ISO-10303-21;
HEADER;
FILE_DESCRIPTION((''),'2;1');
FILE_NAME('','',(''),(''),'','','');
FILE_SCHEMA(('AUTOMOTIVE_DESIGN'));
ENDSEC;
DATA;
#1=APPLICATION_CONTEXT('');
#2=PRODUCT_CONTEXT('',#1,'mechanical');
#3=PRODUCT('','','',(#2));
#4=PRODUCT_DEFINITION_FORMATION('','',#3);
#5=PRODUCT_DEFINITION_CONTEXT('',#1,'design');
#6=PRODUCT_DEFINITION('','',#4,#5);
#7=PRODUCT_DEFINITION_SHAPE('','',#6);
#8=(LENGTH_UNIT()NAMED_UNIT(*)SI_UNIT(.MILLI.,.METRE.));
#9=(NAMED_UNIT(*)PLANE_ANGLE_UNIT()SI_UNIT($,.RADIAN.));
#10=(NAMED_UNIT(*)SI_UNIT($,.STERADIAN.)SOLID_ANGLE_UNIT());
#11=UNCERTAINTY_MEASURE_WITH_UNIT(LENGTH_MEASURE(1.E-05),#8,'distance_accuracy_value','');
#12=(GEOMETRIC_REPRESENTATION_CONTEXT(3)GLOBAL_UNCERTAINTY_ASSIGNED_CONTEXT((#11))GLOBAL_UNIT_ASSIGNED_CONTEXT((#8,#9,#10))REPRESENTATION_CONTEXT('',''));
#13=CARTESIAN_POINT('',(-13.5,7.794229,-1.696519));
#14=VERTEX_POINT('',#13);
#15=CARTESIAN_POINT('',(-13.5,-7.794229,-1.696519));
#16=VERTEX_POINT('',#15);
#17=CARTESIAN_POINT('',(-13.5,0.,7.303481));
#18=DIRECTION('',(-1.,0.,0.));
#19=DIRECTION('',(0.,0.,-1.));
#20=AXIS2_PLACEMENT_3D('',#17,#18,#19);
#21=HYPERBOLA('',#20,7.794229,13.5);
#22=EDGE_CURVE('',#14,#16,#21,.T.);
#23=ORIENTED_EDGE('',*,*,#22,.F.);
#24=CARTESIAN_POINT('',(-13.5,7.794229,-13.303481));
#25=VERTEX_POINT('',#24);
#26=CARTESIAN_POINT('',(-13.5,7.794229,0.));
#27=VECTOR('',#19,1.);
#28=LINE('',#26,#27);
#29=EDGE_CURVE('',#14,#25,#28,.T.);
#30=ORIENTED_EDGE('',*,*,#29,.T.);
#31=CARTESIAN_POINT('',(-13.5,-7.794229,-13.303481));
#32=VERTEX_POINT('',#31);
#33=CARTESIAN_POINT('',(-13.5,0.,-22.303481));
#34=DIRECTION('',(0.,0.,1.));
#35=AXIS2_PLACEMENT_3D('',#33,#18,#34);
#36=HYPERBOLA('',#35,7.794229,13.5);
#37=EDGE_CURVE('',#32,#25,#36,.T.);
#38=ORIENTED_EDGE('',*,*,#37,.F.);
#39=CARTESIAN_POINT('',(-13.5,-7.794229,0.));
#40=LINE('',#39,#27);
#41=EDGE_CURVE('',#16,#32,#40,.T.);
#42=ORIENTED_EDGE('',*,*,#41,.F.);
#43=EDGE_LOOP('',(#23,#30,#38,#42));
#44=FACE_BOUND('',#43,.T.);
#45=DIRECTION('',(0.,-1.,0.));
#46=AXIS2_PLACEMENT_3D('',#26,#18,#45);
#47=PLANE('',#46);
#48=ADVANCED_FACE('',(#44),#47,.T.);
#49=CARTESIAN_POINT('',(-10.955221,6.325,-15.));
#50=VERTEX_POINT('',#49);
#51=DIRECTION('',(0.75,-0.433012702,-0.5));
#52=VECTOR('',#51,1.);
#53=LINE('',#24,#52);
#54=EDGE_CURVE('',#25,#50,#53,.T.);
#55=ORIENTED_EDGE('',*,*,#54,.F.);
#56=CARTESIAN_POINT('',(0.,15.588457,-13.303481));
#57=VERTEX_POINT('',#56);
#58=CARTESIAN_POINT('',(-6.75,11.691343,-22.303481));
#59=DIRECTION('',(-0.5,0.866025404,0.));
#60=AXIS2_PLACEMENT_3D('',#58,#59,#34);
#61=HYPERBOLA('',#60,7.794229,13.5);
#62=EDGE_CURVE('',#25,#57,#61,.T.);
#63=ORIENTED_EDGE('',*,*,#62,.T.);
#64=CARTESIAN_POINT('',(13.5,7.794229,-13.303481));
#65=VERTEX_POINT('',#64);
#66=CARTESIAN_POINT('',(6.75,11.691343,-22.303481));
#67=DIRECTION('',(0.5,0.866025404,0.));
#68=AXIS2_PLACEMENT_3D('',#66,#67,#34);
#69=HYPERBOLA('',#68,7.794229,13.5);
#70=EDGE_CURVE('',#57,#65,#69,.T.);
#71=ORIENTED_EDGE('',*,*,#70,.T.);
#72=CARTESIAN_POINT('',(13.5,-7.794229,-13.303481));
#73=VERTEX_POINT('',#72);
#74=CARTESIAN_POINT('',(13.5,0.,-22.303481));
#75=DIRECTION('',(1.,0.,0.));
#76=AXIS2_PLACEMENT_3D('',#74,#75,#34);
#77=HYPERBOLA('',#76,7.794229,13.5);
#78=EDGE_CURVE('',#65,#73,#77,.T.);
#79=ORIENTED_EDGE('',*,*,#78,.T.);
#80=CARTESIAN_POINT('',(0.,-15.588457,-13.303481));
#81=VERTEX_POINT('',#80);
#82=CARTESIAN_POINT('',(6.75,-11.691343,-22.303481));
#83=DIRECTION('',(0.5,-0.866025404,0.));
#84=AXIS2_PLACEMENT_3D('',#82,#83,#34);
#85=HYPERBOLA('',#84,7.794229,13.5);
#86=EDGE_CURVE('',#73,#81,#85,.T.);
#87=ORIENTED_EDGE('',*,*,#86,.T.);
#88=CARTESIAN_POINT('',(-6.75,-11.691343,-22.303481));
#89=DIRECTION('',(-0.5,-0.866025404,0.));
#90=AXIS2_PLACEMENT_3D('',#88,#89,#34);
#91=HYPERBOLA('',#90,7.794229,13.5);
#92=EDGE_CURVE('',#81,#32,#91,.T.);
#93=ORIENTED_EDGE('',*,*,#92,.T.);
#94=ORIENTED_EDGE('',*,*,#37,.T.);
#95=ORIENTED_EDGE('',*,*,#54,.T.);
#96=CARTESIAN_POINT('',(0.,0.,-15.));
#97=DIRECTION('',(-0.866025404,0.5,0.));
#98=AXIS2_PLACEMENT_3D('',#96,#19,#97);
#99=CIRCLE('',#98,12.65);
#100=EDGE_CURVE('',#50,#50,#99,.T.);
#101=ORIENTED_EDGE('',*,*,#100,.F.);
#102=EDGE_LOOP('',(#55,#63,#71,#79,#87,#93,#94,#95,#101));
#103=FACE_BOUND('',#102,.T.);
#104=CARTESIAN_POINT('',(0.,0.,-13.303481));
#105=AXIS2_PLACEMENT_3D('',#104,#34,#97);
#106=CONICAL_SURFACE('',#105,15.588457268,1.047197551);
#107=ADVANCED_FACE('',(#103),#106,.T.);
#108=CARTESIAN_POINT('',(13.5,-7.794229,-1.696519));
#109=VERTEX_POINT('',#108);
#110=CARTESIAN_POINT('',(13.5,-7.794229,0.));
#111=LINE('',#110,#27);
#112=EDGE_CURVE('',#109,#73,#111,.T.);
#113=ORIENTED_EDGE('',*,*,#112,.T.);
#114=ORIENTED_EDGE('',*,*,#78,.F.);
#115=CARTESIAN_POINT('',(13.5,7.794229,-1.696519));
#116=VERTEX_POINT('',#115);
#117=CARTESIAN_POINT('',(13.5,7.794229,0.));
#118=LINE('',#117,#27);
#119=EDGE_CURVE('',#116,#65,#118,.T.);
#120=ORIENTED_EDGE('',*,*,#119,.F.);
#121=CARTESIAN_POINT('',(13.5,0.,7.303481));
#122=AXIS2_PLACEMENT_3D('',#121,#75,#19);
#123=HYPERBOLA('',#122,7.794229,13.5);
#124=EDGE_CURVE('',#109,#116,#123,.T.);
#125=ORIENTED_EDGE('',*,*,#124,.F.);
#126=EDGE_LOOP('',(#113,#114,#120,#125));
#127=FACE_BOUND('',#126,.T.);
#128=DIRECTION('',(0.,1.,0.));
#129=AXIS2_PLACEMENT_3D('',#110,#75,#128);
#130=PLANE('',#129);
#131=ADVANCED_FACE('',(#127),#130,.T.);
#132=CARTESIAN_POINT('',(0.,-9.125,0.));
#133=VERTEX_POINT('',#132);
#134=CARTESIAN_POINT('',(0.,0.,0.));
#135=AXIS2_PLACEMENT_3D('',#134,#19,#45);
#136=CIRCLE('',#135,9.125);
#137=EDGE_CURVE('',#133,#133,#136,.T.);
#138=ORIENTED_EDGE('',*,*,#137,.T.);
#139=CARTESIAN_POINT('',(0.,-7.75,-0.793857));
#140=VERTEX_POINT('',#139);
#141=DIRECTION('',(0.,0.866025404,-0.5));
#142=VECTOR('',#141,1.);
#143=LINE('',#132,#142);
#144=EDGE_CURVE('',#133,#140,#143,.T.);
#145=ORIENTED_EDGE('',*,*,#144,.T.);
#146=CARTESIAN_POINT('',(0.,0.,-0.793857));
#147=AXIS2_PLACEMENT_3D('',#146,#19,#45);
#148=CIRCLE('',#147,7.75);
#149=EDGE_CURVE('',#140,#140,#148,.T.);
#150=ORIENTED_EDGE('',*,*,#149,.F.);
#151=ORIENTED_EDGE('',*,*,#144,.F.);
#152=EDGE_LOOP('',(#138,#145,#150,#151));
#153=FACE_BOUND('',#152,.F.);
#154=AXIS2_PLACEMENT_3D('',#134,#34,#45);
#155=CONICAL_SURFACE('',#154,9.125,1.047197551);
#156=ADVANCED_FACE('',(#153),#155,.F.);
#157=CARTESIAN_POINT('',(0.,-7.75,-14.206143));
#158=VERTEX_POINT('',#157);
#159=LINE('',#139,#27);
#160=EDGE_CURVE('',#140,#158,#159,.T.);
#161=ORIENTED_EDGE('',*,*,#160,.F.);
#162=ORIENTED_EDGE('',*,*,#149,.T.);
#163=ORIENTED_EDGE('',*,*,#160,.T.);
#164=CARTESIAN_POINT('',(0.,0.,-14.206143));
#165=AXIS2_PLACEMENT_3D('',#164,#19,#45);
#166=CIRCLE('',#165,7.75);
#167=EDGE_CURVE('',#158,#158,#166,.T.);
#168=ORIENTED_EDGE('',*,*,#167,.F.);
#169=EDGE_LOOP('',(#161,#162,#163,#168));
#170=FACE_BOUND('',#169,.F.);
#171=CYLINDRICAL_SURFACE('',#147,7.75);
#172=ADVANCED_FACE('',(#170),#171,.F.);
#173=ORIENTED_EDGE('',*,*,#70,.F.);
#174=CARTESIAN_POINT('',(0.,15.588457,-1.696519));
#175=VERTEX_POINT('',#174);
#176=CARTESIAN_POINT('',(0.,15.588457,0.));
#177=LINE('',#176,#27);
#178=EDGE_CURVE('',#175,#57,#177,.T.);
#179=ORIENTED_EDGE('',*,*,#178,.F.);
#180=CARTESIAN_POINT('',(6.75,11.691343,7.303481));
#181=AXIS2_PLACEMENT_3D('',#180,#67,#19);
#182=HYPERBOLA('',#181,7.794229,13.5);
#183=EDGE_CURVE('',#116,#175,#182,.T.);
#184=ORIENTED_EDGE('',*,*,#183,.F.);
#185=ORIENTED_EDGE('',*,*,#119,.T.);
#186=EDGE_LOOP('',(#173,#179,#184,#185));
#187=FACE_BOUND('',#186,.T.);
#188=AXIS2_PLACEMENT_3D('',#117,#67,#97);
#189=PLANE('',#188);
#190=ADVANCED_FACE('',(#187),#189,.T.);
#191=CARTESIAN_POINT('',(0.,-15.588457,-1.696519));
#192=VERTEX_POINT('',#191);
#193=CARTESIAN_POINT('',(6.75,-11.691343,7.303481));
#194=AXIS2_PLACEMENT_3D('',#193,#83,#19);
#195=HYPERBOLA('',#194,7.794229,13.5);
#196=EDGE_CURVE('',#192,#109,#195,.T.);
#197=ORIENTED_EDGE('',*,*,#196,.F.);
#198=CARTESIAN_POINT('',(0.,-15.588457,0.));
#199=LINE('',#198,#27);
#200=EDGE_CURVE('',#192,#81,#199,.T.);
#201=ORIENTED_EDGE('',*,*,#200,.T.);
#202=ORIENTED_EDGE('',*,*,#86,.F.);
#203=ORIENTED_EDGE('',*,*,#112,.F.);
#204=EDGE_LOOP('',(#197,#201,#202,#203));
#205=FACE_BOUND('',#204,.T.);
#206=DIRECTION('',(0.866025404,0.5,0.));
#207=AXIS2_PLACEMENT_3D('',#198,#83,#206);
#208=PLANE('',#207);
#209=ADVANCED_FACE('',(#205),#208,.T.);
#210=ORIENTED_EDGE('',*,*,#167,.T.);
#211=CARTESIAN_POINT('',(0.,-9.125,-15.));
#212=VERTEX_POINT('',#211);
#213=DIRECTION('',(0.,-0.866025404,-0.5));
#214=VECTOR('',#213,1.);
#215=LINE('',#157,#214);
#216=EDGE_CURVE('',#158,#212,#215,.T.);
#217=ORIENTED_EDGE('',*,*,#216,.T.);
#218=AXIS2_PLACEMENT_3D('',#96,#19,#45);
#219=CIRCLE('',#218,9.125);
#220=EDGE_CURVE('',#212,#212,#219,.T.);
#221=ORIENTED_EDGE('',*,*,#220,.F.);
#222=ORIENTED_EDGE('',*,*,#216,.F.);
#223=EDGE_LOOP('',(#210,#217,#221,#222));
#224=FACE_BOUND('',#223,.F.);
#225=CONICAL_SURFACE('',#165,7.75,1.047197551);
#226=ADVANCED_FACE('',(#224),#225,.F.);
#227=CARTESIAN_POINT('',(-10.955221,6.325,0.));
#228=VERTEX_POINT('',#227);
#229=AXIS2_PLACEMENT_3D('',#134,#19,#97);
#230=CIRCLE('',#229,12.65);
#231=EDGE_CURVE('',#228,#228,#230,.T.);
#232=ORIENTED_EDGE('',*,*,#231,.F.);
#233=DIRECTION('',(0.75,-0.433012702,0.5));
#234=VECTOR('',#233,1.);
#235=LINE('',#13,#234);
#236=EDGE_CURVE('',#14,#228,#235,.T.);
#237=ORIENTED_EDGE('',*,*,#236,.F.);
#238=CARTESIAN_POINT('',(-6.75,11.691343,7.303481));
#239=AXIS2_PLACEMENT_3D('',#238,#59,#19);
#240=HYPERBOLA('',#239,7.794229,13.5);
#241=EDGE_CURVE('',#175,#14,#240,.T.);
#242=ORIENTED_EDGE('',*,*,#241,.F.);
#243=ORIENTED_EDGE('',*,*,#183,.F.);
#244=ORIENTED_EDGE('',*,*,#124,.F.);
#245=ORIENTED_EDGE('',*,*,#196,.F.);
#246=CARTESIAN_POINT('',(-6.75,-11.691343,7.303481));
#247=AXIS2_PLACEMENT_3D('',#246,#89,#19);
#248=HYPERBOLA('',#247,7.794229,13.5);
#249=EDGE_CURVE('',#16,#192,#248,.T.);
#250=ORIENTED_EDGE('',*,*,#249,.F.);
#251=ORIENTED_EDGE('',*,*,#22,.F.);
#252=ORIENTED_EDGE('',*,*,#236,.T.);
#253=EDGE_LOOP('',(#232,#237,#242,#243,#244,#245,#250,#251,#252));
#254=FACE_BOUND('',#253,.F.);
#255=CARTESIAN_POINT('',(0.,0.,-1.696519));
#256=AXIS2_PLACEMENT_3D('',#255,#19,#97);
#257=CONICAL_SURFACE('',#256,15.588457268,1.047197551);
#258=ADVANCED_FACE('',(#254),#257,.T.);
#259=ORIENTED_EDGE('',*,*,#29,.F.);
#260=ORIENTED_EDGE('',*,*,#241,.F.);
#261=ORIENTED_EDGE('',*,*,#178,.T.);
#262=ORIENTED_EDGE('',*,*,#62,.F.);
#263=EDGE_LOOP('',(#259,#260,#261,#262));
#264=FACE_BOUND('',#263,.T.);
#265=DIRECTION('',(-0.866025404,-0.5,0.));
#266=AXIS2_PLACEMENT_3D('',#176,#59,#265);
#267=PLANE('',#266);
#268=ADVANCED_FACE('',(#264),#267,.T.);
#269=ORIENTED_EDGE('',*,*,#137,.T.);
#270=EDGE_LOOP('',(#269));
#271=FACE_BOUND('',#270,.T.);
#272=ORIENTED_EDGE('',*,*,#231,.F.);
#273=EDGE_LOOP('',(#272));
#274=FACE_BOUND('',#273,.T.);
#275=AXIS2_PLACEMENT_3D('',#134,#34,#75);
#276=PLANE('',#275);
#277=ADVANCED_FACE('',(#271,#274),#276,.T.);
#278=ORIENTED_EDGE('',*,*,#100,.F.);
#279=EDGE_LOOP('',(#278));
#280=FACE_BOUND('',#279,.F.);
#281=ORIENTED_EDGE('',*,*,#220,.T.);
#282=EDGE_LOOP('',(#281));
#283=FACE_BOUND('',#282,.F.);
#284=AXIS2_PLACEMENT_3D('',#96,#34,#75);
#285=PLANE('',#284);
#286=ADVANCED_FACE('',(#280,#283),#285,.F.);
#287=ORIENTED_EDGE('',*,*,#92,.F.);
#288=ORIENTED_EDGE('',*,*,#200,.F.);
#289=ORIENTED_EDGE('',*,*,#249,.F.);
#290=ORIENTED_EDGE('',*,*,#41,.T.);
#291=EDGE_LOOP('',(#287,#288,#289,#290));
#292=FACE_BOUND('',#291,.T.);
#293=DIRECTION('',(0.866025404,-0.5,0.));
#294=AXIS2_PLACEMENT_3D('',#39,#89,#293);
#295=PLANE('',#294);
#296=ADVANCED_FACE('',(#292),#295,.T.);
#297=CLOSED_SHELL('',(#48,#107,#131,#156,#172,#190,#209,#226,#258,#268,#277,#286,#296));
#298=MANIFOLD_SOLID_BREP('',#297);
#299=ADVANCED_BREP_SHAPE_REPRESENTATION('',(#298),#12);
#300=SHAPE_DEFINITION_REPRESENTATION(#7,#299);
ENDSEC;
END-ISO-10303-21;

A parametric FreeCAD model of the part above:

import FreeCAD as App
import Part
import Sketcher
Q = App.Units.Quantity


def add_polygon(sketch, points):
    """Adds a closed chain of lines whose ends are joined by coincident constraints."""
    first, n = sketch.GeometryCount, len(points)
    for a, b in zip(points, points[1:] + points[:1]):
        sketch.addGeometry(Part.LineSegment(App.Vector(*a, 0), App.Vector(*b, 0)), False)
    for i in range(n):
        sketch.addConstraint(Sketcher.Constraint("Coincident", first + i, 2, first + (i + 1) % n, 1))

doc = App.newDocument("Part")
body = doc.addObject("PartDesign::Body", "Body")

# Sketch on XY plane
sketch1 = body.newObject("Sketcher::SketchObject", "Sketch")
sketch1.AttachmentSupport = (doc.getObject("XY_Plane"), [""])
sketch1.MapMode = "FlatFace"
add_polygon(sketch1, [(0, 16), (-14, 8), (-14, -8), (0, -16), (14, -8), (14, 8)])  # lines 0-5
sketch1.addConstraint(Sketcher.Constraint("Vertical", 1))
sketch1.addConstraint(Sketcher.Constraint("Vertical", 4))
sketch1.addConstraint(Sketcher.Constraint("Symmetric", 0, 2, 3, 2, -1, 1))
sketch1.addConstraint(Sketcher.Constraint("Symmetric", 2, 2, 5, 2, -1, 1))
sketch1.addConstraint(Sketcher.Constraint("PointOnObject", 2, 2, -2))
sketch1.addConstraint(Sketcher.Constraint("Parallel", 2, 5))
sketch1.addConstraint(Sketcher.Constraint("Horizontal", 1, 2, 3, 2))
sketch1.addConstraint(Sketcher.Constraint("Angle", 0, Q("-150 deg")))
sketch1.addConstraint(Sketcher.Constraint("DistanceX", 1, 2, 3, 2, 27.0))
sketch1.addConstraint(Sketcher.Constraint("DistanceY", 1, 2, 1, 1, 15.588457))
pad1 = body.newObject("PartDesign::Pad", "Pad")
pad1.Profile = sketch1
pad1.Length = 15
pad1.Reversed = True

# Sketch on YZ plane
sketch2 = body.newObject("Sketcher::SketchObject", "Sketch001")
sketch2.AttachmentSupport = (doc.getObject("YZ_Plane"), [""])
sketch2.MapMode = "FlatFace"
add_polygon(sketch2, [(15.6, -15), (15.6, -13.3), (12.7, -15)])  # lines 0-2
add_polygon(sketch2, [(15.6, -1.7), (15.6, 0), (12.7, 0)])  # lines 3-5
sketch2.addConstraint(Sketcher.Constraint("Vertical", 0))
sketch2.addConstraint(Sketcher.Constraint("Horizontal", 2))
sketch2.addConstraint(Sketcher.Constraint("Vertical", 3))
sketch2.addConstraint(Sketcher.Constraint("Horizontal", 4))
sketch2.addConstraint(Sketcher.Constraint("PointOnObject", 3, 2, -1))
sketch2.addConstraint(Sketcher.Constraint("Vertical", 2, 2, 3, 2))
sketch2.addConstraint(Sketcher.Constraint("Vertical", 1, 2, 4, 2))
sketch2.addConstraint(Sketcher.Constraint("Equal", 0, 3))
sketch2.addConstraint(Sketcher.Constraint("Angle", 1, Q("-150 deg")))
sketch2.addConstraint(Sketcher.Constraint("DistanceY", 1, 2, -1, 1, 15.0))
sketch2.addConstraint(Sketcher.Constraint("DistanceX", -1, 1, 1, 2, 12.65))
sketch2.addConstraint(Sketcher.Constraint("DistanceY", 0, 1, 0, 2, 1.696519))
groove = body.newObject("PartDesign::Groove", "Groove")
groove.Profile = sketch2
groove.ReferenceAxis = (sketch2, ["V_Axis"])
groove.Angle = 360

# Sketch on YZ plane
sketch3 = body.newObject("Sketcher::SketchObject", "Sketch002")
sketch3.AttachmentSupport = (doc.getObject("YZ_Plane"), [""])
sketch3.MapMode = "FlatFace"
add_polygon(sketch3, [(9.1, 0), (0, 0), (0, -15), (9.1, -15), (7.8, -14.2), (7.8, -0.8)])  # lines 0-5
sketch3.addConstraint(Sketcher.Constraint("Horizontal", 0))
sketch3.addConstraint(Sketcher.Constraint("Vertical", 1))
sketch3.addConstraint(Sketcher.Constraint("Horizontal", 2))
sketch3.addConstraint(Sketcher.Constraint("Vertical", 4))
sketch3.addConstraint(Sketcher.Constraint("Coincident", 0, 2, -1, 1))
sketch3.addConstraint(Sketcher.Constraint("Vertical", 2, 2, 5, 2))
sketch3.addConstraint(Sketcher.Constraint("Equal", 3, 5))
sketch3.addConstraint(Sketcher.Constraint("DistanceY", 1, 2, 1, 1, 15.0))
sketch3.addConstraint(Sketcher.Constraint("Angle", 3, Q("150 deg")))
sketch3.addConstraint(Sketcher.Constraint("DistanceX", 0, 2, 0, 1, 9.125))
sketch3.addConstraint(Sketcher.Constraint("DistanceX", -1, 1, 3, 2, 7.75))
groove2 = body.newObject("PartDesign::Groove", "Groove001")
groove2.Profile = sketch3
groove2.ReferenceAxis = (sketch3, ["V_Axis"])
groove2.Angle = 360

doc.recompute()
